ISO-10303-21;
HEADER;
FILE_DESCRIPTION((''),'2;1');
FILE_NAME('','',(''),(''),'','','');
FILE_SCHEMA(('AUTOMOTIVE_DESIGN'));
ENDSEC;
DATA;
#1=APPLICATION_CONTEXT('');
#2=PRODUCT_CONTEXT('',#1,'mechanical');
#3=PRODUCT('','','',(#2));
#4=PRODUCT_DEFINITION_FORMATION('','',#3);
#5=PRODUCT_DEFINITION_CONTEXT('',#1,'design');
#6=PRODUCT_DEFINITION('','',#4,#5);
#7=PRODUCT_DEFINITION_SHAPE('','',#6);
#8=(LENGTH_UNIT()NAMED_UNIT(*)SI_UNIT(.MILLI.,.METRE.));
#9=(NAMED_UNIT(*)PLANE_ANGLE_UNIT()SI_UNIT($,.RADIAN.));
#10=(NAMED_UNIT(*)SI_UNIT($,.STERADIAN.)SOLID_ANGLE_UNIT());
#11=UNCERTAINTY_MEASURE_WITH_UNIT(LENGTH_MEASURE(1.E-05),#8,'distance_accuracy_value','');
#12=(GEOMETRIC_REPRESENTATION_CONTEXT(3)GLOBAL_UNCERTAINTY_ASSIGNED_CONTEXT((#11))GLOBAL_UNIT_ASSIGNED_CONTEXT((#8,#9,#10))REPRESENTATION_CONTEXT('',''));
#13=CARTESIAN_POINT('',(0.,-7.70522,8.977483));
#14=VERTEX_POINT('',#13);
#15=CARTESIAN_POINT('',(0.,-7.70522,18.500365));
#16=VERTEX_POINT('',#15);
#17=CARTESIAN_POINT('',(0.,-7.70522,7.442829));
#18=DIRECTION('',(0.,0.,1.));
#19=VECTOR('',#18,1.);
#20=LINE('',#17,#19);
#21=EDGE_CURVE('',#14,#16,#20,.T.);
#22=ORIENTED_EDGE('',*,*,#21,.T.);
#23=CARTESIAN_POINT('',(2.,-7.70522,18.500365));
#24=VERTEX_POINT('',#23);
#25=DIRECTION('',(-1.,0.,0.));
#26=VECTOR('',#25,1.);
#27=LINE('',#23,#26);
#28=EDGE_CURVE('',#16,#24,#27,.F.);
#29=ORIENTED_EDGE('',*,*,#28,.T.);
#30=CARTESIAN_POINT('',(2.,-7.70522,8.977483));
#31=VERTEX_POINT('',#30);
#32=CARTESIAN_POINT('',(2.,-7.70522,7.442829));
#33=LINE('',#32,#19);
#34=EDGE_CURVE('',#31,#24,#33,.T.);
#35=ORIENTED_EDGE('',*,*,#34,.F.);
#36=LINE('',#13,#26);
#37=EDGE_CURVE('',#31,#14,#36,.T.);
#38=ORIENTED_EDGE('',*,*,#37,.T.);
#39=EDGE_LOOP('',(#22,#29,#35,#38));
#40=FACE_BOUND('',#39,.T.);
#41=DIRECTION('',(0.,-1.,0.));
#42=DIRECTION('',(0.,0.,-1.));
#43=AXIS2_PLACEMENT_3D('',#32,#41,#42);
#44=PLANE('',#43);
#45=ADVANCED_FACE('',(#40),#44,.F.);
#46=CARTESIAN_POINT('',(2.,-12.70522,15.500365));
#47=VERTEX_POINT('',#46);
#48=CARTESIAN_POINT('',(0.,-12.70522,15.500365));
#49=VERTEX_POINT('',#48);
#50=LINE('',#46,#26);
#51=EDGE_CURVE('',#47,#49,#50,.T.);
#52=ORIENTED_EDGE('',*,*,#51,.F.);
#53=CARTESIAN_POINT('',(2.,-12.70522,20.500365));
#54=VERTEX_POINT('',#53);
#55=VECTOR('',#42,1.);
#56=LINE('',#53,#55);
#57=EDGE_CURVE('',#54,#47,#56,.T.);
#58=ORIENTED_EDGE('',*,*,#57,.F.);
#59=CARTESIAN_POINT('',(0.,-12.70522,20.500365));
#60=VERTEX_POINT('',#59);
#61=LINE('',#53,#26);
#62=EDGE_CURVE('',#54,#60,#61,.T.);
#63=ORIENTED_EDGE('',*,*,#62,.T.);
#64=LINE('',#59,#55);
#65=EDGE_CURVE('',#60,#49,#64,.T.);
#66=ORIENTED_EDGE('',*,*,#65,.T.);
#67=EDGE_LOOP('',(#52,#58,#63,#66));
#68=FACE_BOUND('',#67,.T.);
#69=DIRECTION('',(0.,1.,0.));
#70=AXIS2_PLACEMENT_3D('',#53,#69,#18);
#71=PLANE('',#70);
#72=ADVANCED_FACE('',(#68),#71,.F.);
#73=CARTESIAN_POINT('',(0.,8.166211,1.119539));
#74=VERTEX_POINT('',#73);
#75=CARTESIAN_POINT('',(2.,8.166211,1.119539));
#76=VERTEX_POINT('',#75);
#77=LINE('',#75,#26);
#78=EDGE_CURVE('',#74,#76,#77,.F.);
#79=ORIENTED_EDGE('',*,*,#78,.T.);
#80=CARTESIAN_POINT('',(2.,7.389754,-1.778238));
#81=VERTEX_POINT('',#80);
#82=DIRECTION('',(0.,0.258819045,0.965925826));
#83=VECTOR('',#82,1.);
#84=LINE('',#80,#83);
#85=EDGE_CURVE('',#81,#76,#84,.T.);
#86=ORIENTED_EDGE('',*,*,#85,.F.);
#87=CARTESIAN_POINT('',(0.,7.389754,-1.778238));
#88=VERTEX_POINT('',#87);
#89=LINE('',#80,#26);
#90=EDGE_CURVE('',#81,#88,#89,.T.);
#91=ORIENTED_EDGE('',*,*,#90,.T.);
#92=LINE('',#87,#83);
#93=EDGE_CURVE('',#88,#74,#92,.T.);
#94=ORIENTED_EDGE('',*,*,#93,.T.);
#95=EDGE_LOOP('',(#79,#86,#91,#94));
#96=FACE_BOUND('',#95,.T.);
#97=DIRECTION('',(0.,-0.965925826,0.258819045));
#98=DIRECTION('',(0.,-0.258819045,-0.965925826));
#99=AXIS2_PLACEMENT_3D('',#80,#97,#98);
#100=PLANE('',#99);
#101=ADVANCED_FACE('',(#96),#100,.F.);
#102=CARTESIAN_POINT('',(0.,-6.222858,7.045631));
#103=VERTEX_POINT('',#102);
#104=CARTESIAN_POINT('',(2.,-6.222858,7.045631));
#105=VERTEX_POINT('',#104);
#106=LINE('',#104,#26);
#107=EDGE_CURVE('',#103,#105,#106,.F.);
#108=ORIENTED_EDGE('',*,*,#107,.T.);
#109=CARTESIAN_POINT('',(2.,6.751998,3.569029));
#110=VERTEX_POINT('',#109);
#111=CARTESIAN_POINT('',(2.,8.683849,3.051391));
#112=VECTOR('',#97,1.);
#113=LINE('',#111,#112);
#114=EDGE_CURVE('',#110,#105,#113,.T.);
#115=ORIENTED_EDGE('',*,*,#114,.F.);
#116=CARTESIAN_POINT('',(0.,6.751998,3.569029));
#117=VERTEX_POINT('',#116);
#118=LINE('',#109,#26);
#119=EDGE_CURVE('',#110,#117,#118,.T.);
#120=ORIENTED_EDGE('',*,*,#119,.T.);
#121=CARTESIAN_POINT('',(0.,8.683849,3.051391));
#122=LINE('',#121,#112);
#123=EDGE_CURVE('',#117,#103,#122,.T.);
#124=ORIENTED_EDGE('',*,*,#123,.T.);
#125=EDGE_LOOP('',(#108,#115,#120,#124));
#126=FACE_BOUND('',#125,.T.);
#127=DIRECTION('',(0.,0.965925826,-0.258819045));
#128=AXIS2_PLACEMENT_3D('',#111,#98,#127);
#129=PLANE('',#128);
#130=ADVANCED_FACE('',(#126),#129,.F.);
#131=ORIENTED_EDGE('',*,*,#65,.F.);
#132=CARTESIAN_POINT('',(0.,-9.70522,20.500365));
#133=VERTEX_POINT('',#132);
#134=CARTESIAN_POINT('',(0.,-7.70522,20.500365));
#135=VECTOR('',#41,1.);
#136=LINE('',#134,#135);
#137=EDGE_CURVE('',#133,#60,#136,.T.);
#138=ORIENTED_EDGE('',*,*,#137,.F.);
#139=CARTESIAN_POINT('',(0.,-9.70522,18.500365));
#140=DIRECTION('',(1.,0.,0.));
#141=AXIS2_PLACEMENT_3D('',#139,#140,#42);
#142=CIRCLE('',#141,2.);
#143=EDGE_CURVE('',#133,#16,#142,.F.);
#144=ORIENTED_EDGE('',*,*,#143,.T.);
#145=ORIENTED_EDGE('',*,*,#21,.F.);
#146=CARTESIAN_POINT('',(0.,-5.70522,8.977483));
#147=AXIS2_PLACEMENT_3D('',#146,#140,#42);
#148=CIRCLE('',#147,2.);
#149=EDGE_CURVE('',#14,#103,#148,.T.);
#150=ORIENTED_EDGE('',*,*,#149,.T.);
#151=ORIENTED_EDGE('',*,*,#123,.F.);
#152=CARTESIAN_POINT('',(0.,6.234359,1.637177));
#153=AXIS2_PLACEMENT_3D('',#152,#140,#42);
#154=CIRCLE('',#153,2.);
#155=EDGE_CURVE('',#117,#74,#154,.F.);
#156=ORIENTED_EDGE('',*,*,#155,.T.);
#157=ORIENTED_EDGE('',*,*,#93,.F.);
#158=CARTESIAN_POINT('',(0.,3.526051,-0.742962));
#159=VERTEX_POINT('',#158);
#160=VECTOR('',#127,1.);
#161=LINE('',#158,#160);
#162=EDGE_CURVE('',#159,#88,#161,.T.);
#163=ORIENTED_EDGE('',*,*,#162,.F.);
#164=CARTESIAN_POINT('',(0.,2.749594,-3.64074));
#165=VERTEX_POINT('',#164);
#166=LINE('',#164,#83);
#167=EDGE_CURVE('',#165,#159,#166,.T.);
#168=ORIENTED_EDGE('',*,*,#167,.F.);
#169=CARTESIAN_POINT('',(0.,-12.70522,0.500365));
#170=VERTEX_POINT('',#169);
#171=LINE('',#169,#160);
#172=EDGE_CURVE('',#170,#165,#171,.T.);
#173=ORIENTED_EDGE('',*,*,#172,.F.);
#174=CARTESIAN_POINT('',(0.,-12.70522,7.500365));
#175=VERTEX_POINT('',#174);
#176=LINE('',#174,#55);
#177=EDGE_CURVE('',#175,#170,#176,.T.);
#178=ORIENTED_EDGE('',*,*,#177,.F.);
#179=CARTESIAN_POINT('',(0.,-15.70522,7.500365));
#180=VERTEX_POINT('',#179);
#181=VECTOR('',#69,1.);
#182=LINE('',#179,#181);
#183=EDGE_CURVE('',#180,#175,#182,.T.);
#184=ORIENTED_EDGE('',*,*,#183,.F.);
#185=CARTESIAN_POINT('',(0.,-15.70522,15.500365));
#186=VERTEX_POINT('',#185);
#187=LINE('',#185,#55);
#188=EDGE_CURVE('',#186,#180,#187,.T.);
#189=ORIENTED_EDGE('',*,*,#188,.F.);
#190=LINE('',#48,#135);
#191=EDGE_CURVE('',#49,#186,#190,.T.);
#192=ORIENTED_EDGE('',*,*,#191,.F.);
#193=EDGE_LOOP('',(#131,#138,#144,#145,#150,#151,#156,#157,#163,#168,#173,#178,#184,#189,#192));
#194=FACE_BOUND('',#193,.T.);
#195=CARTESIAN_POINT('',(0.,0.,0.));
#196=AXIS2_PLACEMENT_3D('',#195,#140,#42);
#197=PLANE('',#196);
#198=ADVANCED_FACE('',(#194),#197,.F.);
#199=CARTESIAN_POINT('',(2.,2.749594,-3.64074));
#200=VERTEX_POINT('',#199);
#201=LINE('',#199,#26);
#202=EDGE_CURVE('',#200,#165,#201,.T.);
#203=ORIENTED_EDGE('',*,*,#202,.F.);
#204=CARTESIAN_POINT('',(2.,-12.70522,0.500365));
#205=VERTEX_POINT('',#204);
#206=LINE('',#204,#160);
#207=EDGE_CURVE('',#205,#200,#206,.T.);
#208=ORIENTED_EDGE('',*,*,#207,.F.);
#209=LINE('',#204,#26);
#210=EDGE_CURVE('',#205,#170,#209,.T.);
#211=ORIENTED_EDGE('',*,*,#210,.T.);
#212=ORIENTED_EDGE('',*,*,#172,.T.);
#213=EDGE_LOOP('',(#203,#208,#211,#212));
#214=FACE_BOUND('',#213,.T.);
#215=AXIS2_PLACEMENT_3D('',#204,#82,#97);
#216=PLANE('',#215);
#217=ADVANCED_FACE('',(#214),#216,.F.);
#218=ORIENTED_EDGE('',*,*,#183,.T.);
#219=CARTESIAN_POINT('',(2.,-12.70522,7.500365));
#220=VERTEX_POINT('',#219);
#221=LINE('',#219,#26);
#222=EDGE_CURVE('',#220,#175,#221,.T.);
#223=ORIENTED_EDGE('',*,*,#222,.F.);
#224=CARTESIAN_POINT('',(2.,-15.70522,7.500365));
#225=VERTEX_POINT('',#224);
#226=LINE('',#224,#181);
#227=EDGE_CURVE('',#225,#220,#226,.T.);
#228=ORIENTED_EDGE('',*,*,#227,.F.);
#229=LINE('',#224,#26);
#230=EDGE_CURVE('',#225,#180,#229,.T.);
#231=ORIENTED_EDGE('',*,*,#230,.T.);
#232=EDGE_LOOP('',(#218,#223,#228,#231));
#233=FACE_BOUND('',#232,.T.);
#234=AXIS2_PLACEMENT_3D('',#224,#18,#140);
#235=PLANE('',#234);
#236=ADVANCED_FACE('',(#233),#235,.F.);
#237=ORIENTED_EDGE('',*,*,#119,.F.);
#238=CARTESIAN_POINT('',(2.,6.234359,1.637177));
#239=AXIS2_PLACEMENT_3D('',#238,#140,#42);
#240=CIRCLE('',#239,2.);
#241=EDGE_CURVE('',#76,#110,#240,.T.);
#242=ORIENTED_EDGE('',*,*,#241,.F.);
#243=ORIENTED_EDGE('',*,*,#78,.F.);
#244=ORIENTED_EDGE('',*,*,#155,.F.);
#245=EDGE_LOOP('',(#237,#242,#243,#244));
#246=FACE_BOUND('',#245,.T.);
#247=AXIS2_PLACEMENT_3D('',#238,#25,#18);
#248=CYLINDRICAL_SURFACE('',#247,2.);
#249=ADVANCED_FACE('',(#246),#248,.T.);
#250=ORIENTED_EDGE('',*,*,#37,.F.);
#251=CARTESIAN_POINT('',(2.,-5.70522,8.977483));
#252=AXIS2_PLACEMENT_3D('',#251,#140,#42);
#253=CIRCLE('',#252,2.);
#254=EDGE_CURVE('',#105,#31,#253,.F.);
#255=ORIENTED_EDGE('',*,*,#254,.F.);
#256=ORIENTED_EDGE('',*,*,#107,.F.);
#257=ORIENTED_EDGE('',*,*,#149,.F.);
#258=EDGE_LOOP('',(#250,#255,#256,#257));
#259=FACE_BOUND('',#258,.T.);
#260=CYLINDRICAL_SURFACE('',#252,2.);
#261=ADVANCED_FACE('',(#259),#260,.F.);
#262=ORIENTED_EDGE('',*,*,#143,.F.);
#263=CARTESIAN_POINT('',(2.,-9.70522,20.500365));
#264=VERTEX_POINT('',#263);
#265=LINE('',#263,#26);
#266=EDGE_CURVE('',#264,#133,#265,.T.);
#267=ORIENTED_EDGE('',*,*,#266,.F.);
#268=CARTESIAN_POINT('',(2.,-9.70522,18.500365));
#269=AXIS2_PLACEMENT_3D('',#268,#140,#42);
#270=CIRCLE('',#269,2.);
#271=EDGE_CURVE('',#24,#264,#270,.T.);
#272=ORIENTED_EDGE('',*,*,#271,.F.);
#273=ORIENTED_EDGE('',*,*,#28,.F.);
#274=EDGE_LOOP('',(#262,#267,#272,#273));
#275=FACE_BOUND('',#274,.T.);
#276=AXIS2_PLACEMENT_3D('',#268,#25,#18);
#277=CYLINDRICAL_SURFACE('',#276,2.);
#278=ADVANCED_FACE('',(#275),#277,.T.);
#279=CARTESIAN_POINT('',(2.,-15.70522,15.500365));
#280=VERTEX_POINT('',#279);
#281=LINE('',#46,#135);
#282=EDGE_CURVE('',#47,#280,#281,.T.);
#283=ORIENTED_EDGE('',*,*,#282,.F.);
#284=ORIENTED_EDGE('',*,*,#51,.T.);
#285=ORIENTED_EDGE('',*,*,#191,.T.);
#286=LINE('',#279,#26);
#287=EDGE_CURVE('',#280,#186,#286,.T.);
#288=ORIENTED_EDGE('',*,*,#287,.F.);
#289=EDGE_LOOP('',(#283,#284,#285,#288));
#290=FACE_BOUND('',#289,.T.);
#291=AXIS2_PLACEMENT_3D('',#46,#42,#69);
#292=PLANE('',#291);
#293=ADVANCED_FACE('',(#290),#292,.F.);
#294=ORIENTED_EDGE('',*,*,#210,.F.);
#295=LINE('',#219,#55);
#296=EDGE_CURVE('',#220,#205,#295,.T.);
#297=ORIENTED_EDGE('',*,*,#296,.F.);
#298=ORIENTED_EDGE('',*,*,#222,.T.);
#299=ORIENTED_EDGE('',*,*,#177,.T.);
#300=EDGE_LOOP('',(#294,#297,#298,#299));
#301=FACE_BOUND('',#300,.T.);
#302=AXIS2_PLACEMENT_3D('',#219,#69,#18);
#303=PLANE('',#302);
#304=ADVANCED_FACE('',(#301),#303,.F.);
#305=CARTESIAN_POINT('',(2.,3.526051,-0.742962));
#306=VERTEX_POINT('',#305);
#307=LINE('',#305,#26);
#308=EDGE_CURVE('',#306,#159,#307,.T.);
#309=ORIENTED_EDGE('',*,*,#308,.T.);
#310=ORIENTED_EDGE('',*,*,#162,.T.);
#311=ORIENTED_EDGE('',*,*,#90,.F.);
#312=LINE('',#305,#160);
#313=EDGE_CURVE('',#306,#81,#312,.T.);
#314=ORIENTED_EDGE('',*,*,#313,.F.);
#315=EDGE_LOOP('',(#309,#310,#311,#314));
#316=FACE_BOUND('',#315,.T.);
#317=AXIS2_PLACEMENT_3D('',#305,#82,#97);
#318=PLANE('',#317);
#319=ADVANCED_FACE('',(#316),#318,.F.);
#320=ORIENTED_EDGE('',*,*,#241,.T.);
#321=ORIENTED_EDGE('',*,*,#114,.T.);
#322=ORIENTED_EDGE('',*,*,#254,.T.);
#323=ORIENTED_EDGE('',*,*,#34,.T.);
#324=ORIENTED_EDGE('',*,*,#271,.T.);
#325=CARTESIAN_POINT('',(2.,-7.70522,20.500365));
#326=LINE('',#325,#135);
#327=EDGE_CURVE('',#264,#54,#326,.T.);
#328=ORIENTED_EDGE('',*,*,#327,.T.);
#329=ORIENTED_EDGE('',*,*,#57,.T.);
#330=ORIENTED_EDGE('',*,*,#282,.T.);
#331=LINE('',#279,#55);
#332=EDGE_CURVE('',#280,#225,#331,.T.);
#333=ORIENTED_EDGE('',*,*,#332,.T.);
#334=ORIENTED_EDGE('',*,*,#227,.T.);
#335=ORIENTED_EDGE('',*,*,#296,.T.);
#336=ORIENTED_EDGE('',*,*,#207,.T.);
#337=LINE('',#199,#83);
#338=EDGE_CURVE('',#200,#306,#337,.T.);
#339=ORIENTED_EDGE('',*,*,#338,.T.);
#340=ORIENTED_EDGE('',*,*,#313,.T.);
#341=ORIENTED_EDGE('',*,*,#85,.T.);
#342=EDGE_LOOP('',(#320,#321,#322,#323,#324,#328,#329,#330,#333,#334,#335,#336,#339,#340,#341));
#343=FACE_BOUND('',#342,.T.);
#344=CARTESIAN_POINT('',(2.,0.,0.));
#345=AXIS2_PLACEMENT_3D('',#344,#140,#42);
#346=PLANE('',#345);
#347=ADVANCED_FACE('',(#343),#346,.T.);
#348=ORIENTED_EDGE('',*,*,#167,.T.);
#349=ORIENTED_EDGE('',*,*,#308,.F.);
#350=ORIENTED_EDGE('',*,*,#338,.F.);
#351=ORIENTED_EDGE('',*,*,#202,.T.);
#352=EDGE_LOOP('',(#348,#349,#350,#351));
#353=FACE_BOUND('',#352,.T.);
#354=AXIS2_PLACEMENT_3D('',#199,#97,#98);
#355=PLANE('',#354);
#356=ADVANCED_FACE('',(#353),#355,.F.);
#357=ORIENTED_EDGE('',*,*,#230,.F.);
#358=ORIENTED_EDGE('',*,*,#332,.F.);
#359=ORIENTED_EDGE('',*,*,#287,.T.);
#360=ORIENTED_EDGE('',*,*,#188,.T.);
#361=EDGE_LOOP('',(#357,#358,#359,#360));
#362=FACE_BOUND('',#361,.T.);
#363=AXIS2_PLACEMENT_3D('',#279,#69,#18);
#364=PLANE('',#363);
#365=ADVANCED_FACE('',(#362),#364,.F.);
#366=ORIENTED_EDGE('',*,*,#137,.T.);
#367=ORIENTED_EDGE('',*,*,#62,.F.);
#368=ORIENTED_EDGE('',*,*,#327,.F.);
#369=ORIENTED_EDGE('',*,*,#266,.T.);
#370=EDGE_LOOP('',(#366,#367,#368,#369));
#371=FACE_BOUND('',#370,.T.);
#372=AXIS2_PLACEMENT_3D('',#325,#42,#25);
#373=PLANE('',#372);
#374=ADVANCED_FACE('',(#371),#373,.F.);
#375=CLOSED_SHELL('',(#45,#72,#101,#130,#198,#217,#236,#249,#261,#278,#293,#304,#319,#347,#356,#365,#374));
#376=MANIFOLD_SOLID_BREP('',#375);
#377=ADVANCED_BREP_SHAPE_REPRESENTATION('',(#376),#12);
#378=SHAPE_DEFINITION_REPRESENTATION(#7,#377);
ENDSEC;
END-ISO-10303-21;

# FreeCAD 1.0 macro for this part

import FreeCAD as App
import Part
import Sketcher

V = App.Vector
Q = App.Units.Quantity


def edges_at(feature, points):
    """Names of the edges that pass closest to the given points."""
    edges = feature.Shape.Edges
    near = lambda p: min(range(len(edges)), key=lambda i: edges[i].distToShape(Part.Vertex(*p))[0])
    return sorted({f"Edge{near(p) + 1}" for p in points})


def add_polygon(sketch, points):
    """Adds a closed chain of lines whose ends are joined by coincident constraints."""
    first, n = sketch.GeometryCount, len(points)
    for a, b in zip(points, points[1:] + points[:1]):
        sketch.addGeometry(Part.LineSegment(App.Vector(*a, 0), App.Vector(*b, 0)), False)
    for i in range(n):
        sketch.addConstraint(Sketcher.Constraint("Coincident", first + i, 2, first + (i + 1) % n, 1))

doc = App.newDocument("Part")
body = doc.addObject("PartDesign::Body", "Body")

sketch1 = doc.addObject("Sketcher::SketchObject", "Sketch")
body.addObject(sketch1)
sketch1.AttachmentSupport = (doc.YZ_Plane, [""])
sketch1.MapMode = "FlatFace"
add_polygon(sketch1, [(-12.70522, 20.500365), (-12.70522, 15.500365), (-15.70522, 15.500365), (-15.70522, 7.500365), (-12.70522, 7.500365), (-12.70522, 0.500365), (2.749594, -3.64074), (3.526051, -0.742962), (7.389754, -1.778238), (8.683849, 3.051391), (-7.70522, 7.442829), (-7.70522, 20.500365)])
sketch1.addConstraint([
    Sketcher.Constraint("Vertical", 0),
    Sketcher.Constraint("Horizontal", 1),
    Sketcher.Constraint("Vertical", 2),
    Sketcher.Constraint("Horizontal", 3),
    Sketcher.Constraint("Vertical", 4),
    Sketcher.Constraint("Vertical", 10),
    Sketcher.Constraint("Horizontal", 11),
    Sketcher.Constraint("Perpendicular", 5, 6),
    Sketcher.Constraint("Perpendicular", 6, 7),
    Sketcher.Constraint("Perpendicular", 7, 8),
    Sketcher.Constraint("Perpendicular", 8, 9),
    Sketcher.Constraint("Vertical", 0, 2, 3, 2),
    Sketcher.Constraint("Equal", 11, 0),
    Sketcher.Constraint("DistanceX", 1, 2, 1, 1, Q("3 mm")),
    Sketcher.Constraint("DistanceX", 11, 2, 11, 1, Q("5 mm")),
    Sketcher.Constraint("DistanceY", 2, 2, 2, 1, Q("8 mm")),
    Sketcher.Constraint("DistanceY", 4, 2, 4, 1, Q("7 mm")),
    Sketcher.Constraint("Angle", 5, Q("-15 deg")),
    Sketcher.Constraint("Distance", 5, Q("16 mm")),
    Sketcher.Constraint("Distance", 6, Q("3 mm")),
    Sketcher.Constraint("Distance", 7, Q("4 mm")),
    Sketcher.Constraint("Distance", 8, Q("5 mm")),
    Sketcher.Constraint("DistanceX", 0, 2, -1, 1, Q("12.70522 mm")),
    Sketcher.Constraint("DistanceY", 5, 2, -1, 1, Q("3.64074 mm")),
])
pad1 = doc.addObject("PartDesign::Pad", "Pad")
body.addObject(pad1)
pad1.Profile = sketch1
pad1.Length = 2
doc.recompute()

fillet = doc.addObject("PartDesign::Fillet", "Fillet")
body.addObject(fillet)
fillet.Base = (pad1, edges_at(pad1, [(1, -7.705, 20.5), (1, -7.705, 7.443), (1, 8.684, 3.051)]))
fillet.Radius = 2

doc.recompute()
